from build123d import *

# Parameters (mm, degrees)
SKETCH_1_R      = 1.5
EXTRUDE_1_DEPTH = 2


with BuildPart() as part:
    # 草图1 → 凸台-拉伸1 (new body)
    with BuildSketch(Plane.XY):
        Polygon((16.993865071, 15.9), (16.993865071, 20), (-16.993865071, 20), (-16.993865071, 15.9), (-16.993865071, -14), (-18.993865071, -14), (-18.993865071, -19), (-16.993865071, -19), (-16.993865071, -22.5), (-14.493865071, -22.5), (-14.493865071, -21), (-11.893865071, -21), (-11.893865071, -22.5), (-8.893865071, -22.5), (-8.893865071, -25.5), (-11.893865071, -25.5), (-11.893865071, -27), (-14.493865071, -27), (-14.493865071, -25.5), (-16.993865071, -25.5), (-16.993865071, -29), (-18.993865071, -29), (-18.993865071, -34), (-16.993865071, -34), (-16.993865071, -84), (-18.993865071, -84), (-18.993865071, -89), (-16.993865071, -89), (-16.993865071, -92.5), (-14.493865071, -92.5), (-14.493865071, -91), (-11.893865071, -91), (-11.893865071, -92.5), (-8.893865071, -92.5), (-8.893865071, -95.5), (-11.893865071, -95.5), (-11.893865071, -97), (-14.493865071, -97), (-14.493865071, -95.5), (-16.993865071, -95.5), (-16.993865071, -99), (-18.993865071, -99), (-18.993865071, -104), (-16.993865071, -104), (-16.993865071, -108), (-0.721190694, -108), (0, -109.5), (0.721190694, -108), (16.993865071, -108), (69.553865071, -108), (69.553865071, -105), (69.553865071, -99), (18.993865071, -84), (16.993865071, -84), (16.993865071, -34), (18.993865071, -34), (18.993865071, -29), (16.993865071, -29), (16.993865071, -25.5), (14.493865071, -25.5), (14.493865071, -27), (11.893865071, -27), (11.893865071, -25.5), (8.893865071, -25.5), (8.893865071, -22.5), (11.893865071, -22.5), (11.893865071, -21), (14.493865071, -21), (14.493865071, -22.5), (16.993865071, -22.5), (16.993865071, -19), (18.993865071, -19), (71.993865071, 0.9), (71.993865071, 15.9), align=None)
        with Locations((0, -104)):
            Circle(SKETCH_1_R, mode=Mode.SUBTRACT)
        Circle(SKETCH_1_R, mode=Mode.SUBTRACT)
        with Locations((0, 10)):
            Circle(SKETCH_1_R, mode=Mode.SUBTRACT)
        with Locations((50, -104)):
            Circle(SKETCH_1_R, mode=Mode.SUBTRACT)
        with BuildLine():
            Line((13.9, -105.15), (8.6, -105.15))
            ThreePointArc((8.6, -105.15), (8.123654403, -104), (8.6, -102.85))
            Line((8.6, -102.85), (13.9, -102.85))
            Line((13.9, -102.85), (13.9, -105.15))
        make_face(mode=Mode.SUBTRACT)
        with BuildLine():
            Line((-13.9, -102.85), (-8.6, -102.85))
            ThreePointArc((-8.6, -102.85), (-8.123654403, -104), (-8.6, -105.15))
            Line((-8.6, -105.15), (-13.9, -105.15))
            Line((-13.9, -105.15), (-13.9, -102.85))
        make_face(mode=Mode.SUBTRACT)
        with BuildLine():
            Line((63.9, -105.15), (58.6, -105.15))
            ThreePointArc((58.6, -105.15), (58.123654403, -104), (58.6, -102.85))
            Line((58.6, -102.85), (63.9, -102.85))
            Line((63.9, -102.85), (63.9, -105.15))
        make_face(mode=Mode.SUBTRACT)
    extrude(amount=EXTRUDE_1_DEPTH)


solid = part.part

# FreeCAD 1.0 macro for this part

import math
import FreeCAD as App
import Part
import Sketcher
from FreeCAD import Vector
Q = App.Units.Quantity

doc = App.newDocument("Part")
body = doc.addObject("PartDesign::Body", "Body")

# Sketch on XY plane
sketch1 = body.newObject("Sketcher::SketchObject", "Sketch")
sketch1.AttachmentSupport = (doc.getObject("XY_Plane"), [""])
sketch1.MapMode = "FlatFace"
sketch1.addGeometry([
    Part.LineSegment(Vector(17, 15.9, 0), Vector(17, 20, 0)),  # 0
    Part.LineSegment(Vector(17, 20, 0), Vector(-17, 20, 0)),  # 1
    Part.LineSegment(Vector(-17, 20, 0), Vector(-17, -14, 0)),  # 2
    Part.LineSegment(Vector(-17, -14, 0), Vector(-19, -14, 0)),  # 3
    Part.LineSegment(Vector(-19, -14, 0), Vector(-19, -19, 0)),  # 4
    Part.LineSegment(Vector(-19, -19, 0), Vector(-17, -19, 0)),  # 5
    Part.LineSegment(Vector(-17, -19, 0), Vector(-17, -22.5, 0)),  # 6
    Part.LineSegment(Vector(-17, -22.5, 0), Vector(-14.5, -22.5, 0)),  # 7
    Part.LineSegment(Vector(-14.5, -22.5, 0), Vector(-14.5, -21, 0)),  # 8
    Part.LineSegment(Vector(-14.5, -21, 0), Vector(-11.9, -21, 0)),  # 9
    Part.LineSegment(Vector(-11.9, -21, 0), Vector(-11.9, -22.5, 0)),  # 10
    Part.LineSegment(Vector(-11.9, -22.5, 0), Vector(-8.9, -22.5, 0)),  # 11
    Part.LineSegment(Vector(-8.9, -22.5, 0), Vector(-8.9, -25.5, 0)),  # 12
    Part.LineSegment(Vector(-8.9, -25.5, 0), Vector(-11.9, -25.5, 0)),  # 13
    Part.LineSegment(Vector(-11.9, -25.5, 0), Vector(-11.9, -27, 0)),  # 14
    Part.LineSegment(Vector(-11.9, -27, 0), Vector(-14.5, -27, 0)),  # 15
    Part.LineSegment(Vector(-14.5, -27, 0), Vector(-14.5, -25.5, 0)),  # 16
    Part.LineSegment(Vector(-14.5, -25.5, 0), Vector(-17, -25.5, 0)),  # 17
    Part.LineSegment(Vector(-17, -25.5, 0), Vector(-17, -29, 0)),  # 18
    Part.LineSegment(Vector(-17, -29, 0), Vector(-19, -29, 0)),  # 19
    Part.LineSegment(Vector(-19, -29, 0), Vector(-19, -34, 0)),  # 20
    Part.LineSegment(Vector(-19, -34, 0), Vector(-17, -34, 0)),  # 21
    Part.LineSegment(Vector(-17, -34, 0), Vector(-17, -84, 0)),  # 22
    Part.LineSegment(Vector(-17, -84, 0), Vector(-19, -84, 0)),  # 23
    Part.LineSegment(Vector(-19, -84, 0), Vector(-19, -89, 0)),  # 24
    Part.LineSegment(Vector(-19, -89, 0), Vector(-17, -89, 0)),  # 25
    Part.LineSegment(Vector(-17, -89, 0), Vector(-17, -92.5, 0)),  # 26
    Part.LineSegment(Vector(-17, -92.5, 0), Vector(-14.5, -92.5, 0)),  # 27
    Part.LineSegment(Vector(-14.5, -92.5, 0), Vector(-14.5, -91, 0)),  # 28
    Part.LineSegment(Vector(-14.5, -91, 0), Vector(-11.9, -91, 0)),  # 29
    Part.LineSegment(Vector(-11.9, -91, 0), Vector(-11.9, -92.5, 0)),  # 30
    Part.LineSegment(Vector(-11.9, -92.5, 0), Vector(-8.9, -92.5, 0)),  # 31
    Part.LineSegment(Vector(-8.9, -92.5, 0), Vector(-8.9, -95.5, 0)),  # 32
    Part.LineSegment(Vector(-8.9, -95.5, 0), Vector(-11.9, -95.5, 0)),  # 33
    Part.LineSegment(Vector(-11.9, -95.5, 0), Vector(-11.9, -97, 0)),  # 34
    Part.LineSegment(Vector(-11.9, -97, 0), Vector(-14.5, -97, 0)),  # 35
    Part.LineSegment(Vector(-14.5, -97, 0), Vector(-14.5, -95.5, 0)),  # 36
    Part.LineSegment(Vector(-14.5, -95.5, 0), Vector(-17, -95.5, 0)),  # 37
    Part.LineSegment(Vector(-17, -95.5, 0), Vector(-17, -99, 0)),  # 38
    Part.LineSegment(Vector(-17, -99, 0), Vector(-19, -99, 0)),  # 39
    Part.LineSegment(Vector(-19, -99, 0), Vector(-19, -104, 0)),  # 40
    Part.LineSegment(Vector(-19, -104, 0), Vector(-17, -104, 0)),  # 41
    Part.LineSegment(Vector(-17, -104, 0), Vector(-17, -108, 0)),  # 42
    Part.LineSegment(Vector(-17, -108, 0), Vector(-0.7, -108, 0)),  # 43
    Part.LineSegment(Vector(-0.7, -108, 0), Vector(0, -109.5, 0)),  # 44
    Part.LineSegment(Vector(0, -109.5, 0), Vector(0.7, -108, 0)),  # 45
    Part.LineSegment(Vector(0.7, -108, 0), Vector(69.6, -108, 0)),  # 46
    Part.LineSegment(Vector(69.6, -108, 0), Vector(69.6, -99, 0)),  # 47
    Part.LineSegment(Vector(69.6, -99, 0), Vector(19, -84, 0)),  # 48
    Part.LineSegment(Vector(19, -84, 0), Vector(17, -84, 0)),  # 49
    Part.LineSegment(Vector(17, -84, 0), Vector(17, -34, 0)),  # 50
    Part.LineSegment(Vector(17, -34, 0), Vector(19, -34, 0)),  # 51
    Part.LineSegment(Vector(19, -34, 0), Vector(19, -29, 0)),  # 52
    Part.LineSegment(Vector(19, -29, 0), Vector(17, -29, 0)),  # 53
    Part.LineSegment(Vector(17, -29, 0), Vector(17, -25.5, 0)),  # 54
    Part.LineSegment(Vector(17, -25.5, 0), Vector(14.5, -25.5, 0)),  # 55
    Part.LineSegment(Vector(14.5, -25.5, 0), Vector(14.5, -27, 0)),  # 56
    Part.LineSegment(Vector(14.5, -27, 0), Vector(11.9, -27, 0)),  # 57
    Part.LineSegment(Vector(11.9, -27, 0), Vector(11.9, -25.5, 0)),  # 58
    Part.LineSegment(Vector(11.9, -25.5, 0), Vector(8.9, -25.5, 0)),  # 59
    Part.LineSegment(Vector(8.9, -25.5, 0), Vector(8.9, -22.5, 0)),  # 60
    Part.LineSegment(Vector(8.9, -22.5, 0), Vector(11.9, -22.5, 0)),  # 61
    Part.LineSegment(Vector(11.9, -22.5, 0), Vector(11.9, -21, 0)),  # 62
    Part.LineSegment(Vector(11.9, -21, 0), Vector(14.5, -21, 0)),  # 63
    Part.LineSegment(Vector(14.5, -21, 0), Vector(14.5, -22.5, 0)),  # 64
    Part.LineSegment(Vector(14.5, -22.5, 0), Vector(17, -22.5, 0)),  # 65
    Part.LineSegment(Vector(17, -22.5, 0), Vector(17, -19, 0)),  # 66
    Part.LineSegment(Vector(17, -19, 0), Vector(19, -19, 0)),  # 67
    Part.LineSegment(Vector(19, -19, 0), Vector(72, 0.9, 0)),  # 68
    Part.LineSegment(Vector(72, 0.9, 0), Vector(72, 15.9, 0)),  # 69
    Part.LineSegment(Vector(72, 15.9, 0), Vector(17, 15.9, 0)),  # 70
    Part.LineSegment(Vector(-13.9, -105.2, 0), Vector(-13.9, -102.8, 0)),  # 71
    Part.LineSegment(Vector(-13.9, -102.8, 0), Vector(-8.6, -102.8, 0)),  # 72
    Part.ArcOfCircle(Part.Circle(Vector(-9.7, -104, 0), Vector(0, 0, 1), 1.6), math.radians(-45), math.radians(45)),  # 73
    Part.LineSegment(Vector(-8.6, -105.2, 0), Vector(-13.9, -105.2, 0)),  # 74
    Part.Circle(Vector(0, -104, 0), Vector(0, 0, 1), 1.5),  # 75
    Part.LineSegment(Vector(13.9, -102.8, 0), Vector(13.9, -105.2, 0)),  # 76
    Part.LineSegment(Vector(13.9, -105.2, 0), Vector(8.6, -105.2, 0)),  # 77
    Part.ArcOfCircle(Part.Circle(Vector(9.7, -104, 0), Vector(0, 0, 1), 1.6), math.radians(135), math.radians(225)),  # 78
    Part.LineSegment(Vector(8.6, -102.8, 0), Vector(13.9, -102.8, 0)),  # 79
    Part.Circle(Vector(50, -104, 0), Vector(0, 0, 1), 1.5),  # 80
    Part.LineSegment(Vector(63.9, -102.8, 0), Vector(63.9, -105.2, 0)),  # 81
    Part.LineSegment(Vector(63.9, -105.2, 0), Vector(58.6, -105.2, 0)),  # 82
    Part.ArcOfCircle(Part.Circle(Vector(59.7, -104, 0), Vector(0, 0, 1), 1.6), math.radians(135), math.radians(225)),  # 83
    Part.LineSegment(Vector(58.6, -102.8, 0), Vector(63.9, -102.8, 0)),  # 84
    Part.Circle(Vector(0, 0, 0), Vector(0, 0, 1), 1.5),  # 85
    Part.Circle(Vector(0, 10, 0), Vector(0, 0, 1), 1.5),  # 86
], False)
sketch1.addConstraint([
    Sketcher.Constraint("Coincident", 0, 2, 1, 1),
    Sketcher.Constraint("Coincident", 1, 2, 2, 1),
    Sketcher.Constraint("Coincident", 2, 2, 3, 1),
    Sketcher.Constraint("Coincident", 3, 2, 4, 1),
    Sketcher.Constraint("Coincident", 4, 2, 5, 1),
    Sketcher.Constraint("Coincident", 5, 2, 6, 1),
    Sketcher.Constraint("Coincident", 6, 2, 7, 1),
    Sketcher.Constraint("Coincident", 7, 2, 8, 1),
    Sketcher.Constraint("Coincident", 8, 2, 9, 1),
    Sketcher.Constraint("Coincident", 9, 2, 10, 1),
    Sketcher.Constraint("Coincident", 10, 2, 11, 1),
    Sketcher.Constraint("Coincident", 11, 2, 12, 1),
    Sketcher.Constraint("Coincident", 12, 2, 13, 1),
    Sketcher.Constraint("Coincident", 13, 2, 14, 1),
    Sketcher.Constraint("Coincident", 14, 2, 15, 1),
    Sketcher.Constraint("Coincident", 15, 2, 16, 1),
    Sketcher.Constraint("Coincident", 16, 2, 17, 1),
    Sketcher.Constraint("Coincident", 17, 2, 18, 1),
    Sketcher.Constraint("Coincident", 18, 2, 19, 1),
    Sketcher.Constraint("Coincident", 19, 2, 20, 1),
    Sketcher.Constraint("Coincident", 20, 2, 21, 1),
    Sketcher.Constraint("Coincident", 21, 2, 22, 1),
    Sketcher.Constraint("Coincident", 22, 2, 23, 1),
    Sketcher.Constraint("Coincident", 23, 2, 24, 1),
    Sketcher.Constraint("Coincident", 24, 2, 25, 1),
    Sketcher.Constraint("Coincident", 25, 2, 26, 1),
    Sketcher.Constraint("Coincident", 26, 2, 27, 1),
    Sketcher.Constraint("Coincident", 27, 2, 28, 1),
    Sketcher.Constraint("Coincident", 28, 2, 29, 1),
    Sketcher.Constraint("Coincident", 29, 2, 30, 1),
    Sketcher.Constraint("Coincident", 30, 2, 31, 1),
    Sketcher.Constraint("Coincident", 31, 2, 32, 1),
    Sketcher.Constraint("Coincident", 32, 2, 33, 1),
    Sketcher.Constraint("Coincident", 33, 2, 34, 1),
    Sketcher.Constraint("Coincident", 34, 2, 35, 1),
    Sketcher.Constraint("Coincident", 35, 2, 36, 1),
    Sketcher.Constraint("Coincident", 36, 2, 37, 1),
    Sketcher.Constraint("Coincident", 37, 2, 38, 1),
    Sketcher.Constraint("Coincident", 38, 2, 39, 1),
    Sketcher.Constraint("Coincident", 39, 2, 40, 1),
    Sketcher.Constraint("Coincident", 40, 2, 41, 1),
    Sketcher.Constraint("Coincident", 41, 2, 42, 1),
    Sketcher.Constraint("Coincident", 42, 2, 43, 1),
    Sketcher.Constraint("Coincident", 43, 2, 44, 1),
    Sketcher.Constraint("Coincident", 44, 2, 45, 1),
    Sketcher.Constraint("Coincident", 45, 2, 46, 1),
    Sketcher.Constraint("Coincident", 46, 2, 47, 1),
    Sketcher.Constraint("Coincident", 47, 2, 48, 1),
    Sketcher.Constraint("Coincident", 48, 2, 49, 1),
    Sketcher.Constraint("Coincident", 49, 2, 50, 1),
    Sketcher.Constraint("Coincident", 50, 2, 51, 1),
    Sketcher.Constraint("Coincident", 51, 2, 52, 1),
    Sketcher.Constraint("Coincident", 52, 2, 53, 1),
    Sketcher.Constraint("Coincident", 53, 2, 54, 1),
    Sketcher.Constraint("Coincident", 54, 2, 55, 1),
    Sketcher.Constraint("Coincident", 55, 2, 56, 1),
    Sketcher.Constraint("Coincident", 56, 2, 57, 1),
    Sketcher.Constraint("Coincident", 57, 2, 58, 1),
    Sketcher.Constraint("Coincident", 58, 2, 59, 1),
    Sketcher.Constraint("Coincident", 59, 2, 60, 1),
    Sketcher.Constraint("Coincident", 60, 2, 61, 1),
    Sketcher.Constraint("Coincident", 61, 2, 62, 1),
    Sketcher.Constraint("Coincident", 62, 2, 63, 1),
    Sketcher.Constraint("Coincident", 63, 2, 64, 1),
    Sketcher.Constraint("Coincident", 64, 2, 65, 1),
    Sketcher.Constraint("Coincident", 65, 2, 66, 1),
    Sketcher.Constraint("Coincident", 66, 2, 67, 1),
    Sketcher.Constraint("Coincident", 67, 2, 68, 1),
    Sketcher.Constraint("Coincident", 68, 2, 69, 1),
    Sketcher.Constraint("Coincident", 69, 2, 70, 1),
    Sketcher.Constraint("Coincident", 70, 2, 0, 1),
    Sketcher.Constraint("Coincident", 71, 2, 72, 1),
    Sketcher.Constraint("Coincident", 72, 2, 73, 2),
    Sketcher.Constraint("Coincident", 73, 1, 74, 1),
    Sketcher.Constraint("Coincident", 74, 2, 71, 1),
    Sketcher.Constraint("Coincident", 76, 2, 77, 1),
    Sketcher.Constraint("Coincident", 77, 2, 78, 2),
    Sketcher.Constraint("Coincident", 78, 1, 79, 1),
    Sketcher.Constraint("Coincident", 79, 2, 76, 1),
    Sketcher.Constraint("Coincident", 81, 2, 82, 1),
    Sketcher.Constraint("Coincident", 82, 2, 83, 2),
    Sketcher.Constraint("Coincident", 83, 1, 84, 1),
    Sketcher.Constraint("Coincident", 84, 2, 81, 1),
    Sketcher.Constraint("Vertical", 0),
    Sketcher.Constraint("Horizontal", 1),
    Sketcher.Constraint("Vertical", 2),
    Sketcher.Constraint("Horizontal", 3),
    Sketcher.Constraint("Vertical", 4),
    Sketcher.Constraint("Horizontal", 5),
    Sketcher.Constraint("Vertical", 6),
    Sketcher.Constraint("Horizontal", 7),
    Sketcher.Constraint("Vertical", 8),
    Sketcher.Constraint("Horizontal", 9),
    Sketcher.Constraint("Vertical", 10),
    Sketcher.Constraint("Horizontal", 11),
    Sketcher.Constraint("Vertical", 12),
    Sketcher.Constraint("Horizontal", 13),
    Sketcher.Constraint("Vertical", 14),
    Sketcher.Constraint("Horizontal", 15),
    Sketcher.Constraint("Vertical", 16),
    Sketcher.Constraint("Horizontal", 17),
    Sketcher.Constraint("Vertical", 18),
    Sketcher.Constraint("Horizontal", 19),
    Sketcher.Constraint("Vertical", 20),
    Sketcher.Constraint("Horizontal", 21),
    Sketcher.Constraint("Vertical", 22),
    Sketcher.Constraint("Horizontal", 23),
    Sketcher.Constraint("Vertical", 24),
    Sketcher.Constraint("Horizontal", 25),
    Sketcher.Constraint("Vertical", 26),
    Sketcher.Constraint("Horizontal", 27),
    Sketcher.Constraint("Vertical", 28),
    Sketcher.Constraint("Horizontal", 29),
    Sketcher.Constraint("Vertical", 30),
    Sketcher.Constraint("Horizontal", 31),
    Sketcher.Constraint("Vertical", 32),
    Sketcher.Constraint("Horizontal", 33),
    Sketcher.Constraint("Vertical", 34),
    Sketcher.Constraint("Horizontal", 35),
    Sketcher.Constraint("Vertical", 36),
    Sketcher.Constraint("Horizontal", 37),
    Sketcher.Constraint("Vertical", 38),
    Sketcher.Constraint("Horizontal", 39),
    Sketcher.Constraint("Vertical", 40),
    Sketcher.Constraint("Horizontal", 41),
    Sketcher.Constraint("Vertical", 42),
    Sketcher.Constraint("Horizontal", 43),
    Sketcher.Constraint("Horizontal", 46),
    Sketcher.Constraint("Vertical", 47),
    Sketcher.Constraint("Horizontal", 49),
    Sketcher.Constraint("Vertical", 50),
    Sketcher.Constraint("Horizontal", 51),
    Sketcher.Constraint("Vertical", 52),
    Sketcher.Constraint("Horizontal", 53),
    Sketcher.Constraint("Vertical", 54),
    Sketcher.Constraint("Horizontal", 55),
    Sketcher.Constraint("Vertical", 56),
    Sketcher.Constraint("Horizontal", 57),
    Sketcher.Constraint("Vertical", 58),
    Sketcher.Constraint("Horizontal", 59),
    Sketcher.Constraint("Vertical", 60),
    Sketcher.Constraint("Horizontal", 61),
    Sketcher.Constraint("Vertical", 62),
    Sketcher.Constraint("Horizontal", 63),
    Sketcher.Constraint("Vertical", 64),
    Sketcher.Constraint("Horizontal", 65),
    Sketcher.Constraint("Vertical", 66),
    Sketcher.Constraint("Horizontal", 67),
    Sketcher.Constraint("Vertical", 69),
    Sketcher.Constraint("Horizontal", 70),
    Sketcher.Constraint("Vertical", 71),
    Sketcher.Constraint("Horizontal", 72),
    Sketcher.Constraint("Horizontal", 74),
    Sketcher.Constraint("Vertical", 76),
    Sketcher.Constraint("Horizontal", 77),
    Sketcher.Constraint("Horizontal", 79),
    Sketcher.Constraint("Vertical", 81),
    Sketcher.Constraint("Horizontal", 82),
    Sketcher.Constraint("Horizontal", 84),
    Sketcher.Constraint("Coincident", 85, 3, -1, 1),
    Sketcher.Constraint("Equal", 73, 78),
    Sketcher.Constraint("Equal", 75, 80),
    Sketcher.Constraint("Equal", 78, 83),
    Sketcher.Constraint("Equal", 80, 85),
    Sketcher.Constraint("Equal", 85, 86),
    Sketcher.Constraint("Symmetric", 73, 3, 78, 3, -2),
    Sketcher.Constraint("Symmetric", 43, 2, 45, 2, -2),
    Sketcher.Constraint("Symmetric", 23, 2, 48, 2, -2),
    Sketcher.Constraint("Symmetric", 21, 2, 50, 2, -2),
    Sketcher.Constraint("Symmetric", 19, 2, 52, 2, -2),
    Sketcher.Constraint("Symmetric", 17, 2, 54, 2, -2),
    Sketcher.Constraint("Symmetric", 15, 2, 56, 2, -2),
    Sketcher.Constraint("Symmetric", 13, 2, 58, 2, -2),
    Sketcher.Constraint("Symmetric", 11, 2, 60, 2, -2),
    Sketcher.Constraint("Symmetric", 9, 2, 62, 2, -2),
    Sketcher.Constraint("Symmetric", 7, 2, 64, 2, -2),
    Sketcher.Constraint("Symmetric", 5, 2, 66, 2, -2),
    Sketcher.Constraint("Symmetric", 74, 2, 76, 2, -2),
    Sketcher.Constraint("PointOnObject", 75, 3, -2),
    Sketcher.Constraint("PointOnObject", 86, 3, -2),
    Sketcher.Constraint("PointOnObject", 44, 2, -2),
    Sketcher.Constraint("Horizontal", 73, 3, 75, 3),
    Sketcher.Constraint("Horizontal", 78, 3, 80, 3),
    Sketcher.Constraint("Horizontal", 80, 3, 83, 3),
    Sketcher.Constraint("Horizontal", 7, 2, 10, 2),
    Sketcher.Constraint("Horizontal", 13, 2, 16, 2),
    Sketcher.Constraint("Horizontal", 27, 2, 30, 2),
    Sketcher.Constraint("Horizontal", 33, 2, 36, 2),
    Sketcher.Constraint("Horizontal", 83, 3, 40, 2),
    Sketcher.Constraint("Horizontal", 39, 2, 47, 2),
    Sketcher.Constraint("Horizontal", 72, 2, 78, 1),
    Sketcher.Constraint("Horizontal", 77, 2, 81, 2),
    Sketcher.Constraint("Horizontal", 79, 2, 83, 1),
    Sketcher.Constraint("Vertical", 2, 2, 5, 2),
    Sketcher.Constraint("Vertical", 10, 2, 13, 2),
    Sketcher.Constraint("Vertical", 8, 2, 15, 2),
    Sketcher.Constraint("Vertical", 6, 2, 17, 2),
    Sketcher.Constraint("Vertical", 4, 2, 19, 2),
    Sketcher.Constraint("Vertical", 18, 2, 21, 2),
    Sketcher.Constraint("Vertical", 20, 2, 23, 2),
    Sketcher.Constraint("Vertical", 22, 2, 25, 2),
    Sketcher.Constraint("Vertical", 16, 2, 27, 2),
    Sketcher.Constraint("Vertical", 14, 2, 29, 2),
    Sketcher.Constraint("Vertical", 12, 2, 31, 2),
    Sketcher.Constraint("Vertical", 30, 2, 33, 2),
    Sketcher.Constraint("Vertical", 28, 2, 35, 2),
    Sketcher.Constraint("Vertical", 26, 2, 37, 2),
    Sketcher.Constraint("Vertical", 24, 2, 39, 2),
    Sketcher.Constraint("Vertical", 38, 2, 41, 2),
    Sketcher.Constraint("Vertical", 0, 2, 49, 2),
    Sketcher.Constraint("Vertical", 52, 2, 67, 2),
    Sketcher.Constraint("Vertical", 72, 2, 73, 1),
    Sketcher.Constraint("Equal", 79, 82),
    Sketcher.Constraint("Equal", 61, 12),
    Sketcher.Constraint("Equal", 10, 14),
    Sketcher.Constraint("Equal", 6, 18),
    Sketcher.Constraint("Equal", 4, 20),
    Sketcher.Constraint("Equal", 20, 24),
    Sketcher.Constraint("Equal", 18, 26),
    Sketcher.Constraint("Equal", 16, 28),
    Sketcher.Constraint("Equal", 12, 32),
    Sketcher.Constraint("Equal", 30, 34),
    Sketcher.Constraint("Equal", 26, 38),
    Sketcher.Constraint("Equal", 24, 40),
    Sketcher.Constraint("Diameter", 75, Q("3 mm")),
    Sketcher.Constraint("DistanceX", 3, 2, 3, 1, Q("2 mm")),
    Sketcher.Constraint("DistanceX", 11, 1, 11, 2, Q("3 mm")),
    Sketcher.Constraint("DistanceX", 70, 2, 70, 1, Q("55 mm")),
    Sketcher.Constraint("DistanceY", 2, 2, 2, 1, Q("34 mm")),
    Sketcher.Constraint("DistanceY", 4, 2, 4, 1, Q("5 mm")),
    Sketcher.Constraint("DistanceY", 22, 2, 22, 1, Q("50 mm")),
    Sketcher.Constraint("DistanceY", 42, 2, 42, 1, Q("4 mm")),
    Sketcher.Constraint("DistanceY", 69, 1, 69, 2, Q("15 mm")),
    Sketcher.Constraint("DistanceX", 7, 1, 7, 2, Q("2.5 mm")),
    Sketcher.Constraint("DistanceX", 9, 1, 9, 2, Q("2.6 mm")),
    Sketcher.Constraint("DistanceX", 72, 1, 72, 2, Q("5.3 mm")),
    Sketcher.Constraint("DistanceY", 0, 1, 0, 2, Q("4.1 mm")),
    Sketcher.Constraint("DistanceY", 6, 2, 6, 1, Q("3.5 mm")),
    Sketcher.Constraint("DistanceY", 8, 1, 8, 2, Q("1.5 mm")),
    Sketcher.Constraint("DistanceY", 71, 1, 71, 2, Q("2.3 mm")),
    Sketcher.Constraint("DistanceY", 73, 3, -1, 1, Q("104 mm")),
    Sketcher.Constraint("DistanceX", -1, 1, 80, 3, Q("50 mm")),
    Sketcher.Constraint("DistanceY", -1, 1, 86, 3, Q("10 mm")),
    Sketcher.Constraint("DistanceY", 44, 2, -1, 1, Q("109.5 mm")),
    Sketcher.Constraint("DistanceX", 71, 2, -1, 1, Q("13.9 mm")),
    Sketcher.Constraint("DistanceX", -1, 1, 81, 2, Q("63.9 mm")),
    Sketcher.Constraint("DistanceX", 73, 3, -1, 1, Q("9.75 mm")),
    Sketcher.Constraint("DistanceX", 1, 2, 1, 1, Q("33.98773 mm")),
    Sketcher.Constraint("Distance", 48, Q("52.738161 mm")),
    Sketcher.Constraint("DistanceX", 43, 1, 43, 2, Q("16.272674 mm")),
])
pad1 = body.newObject("PartDesign::Pad", "Pad")
pad1.Profile = sketch1
pad1.Length = 2

doc.recompute()
